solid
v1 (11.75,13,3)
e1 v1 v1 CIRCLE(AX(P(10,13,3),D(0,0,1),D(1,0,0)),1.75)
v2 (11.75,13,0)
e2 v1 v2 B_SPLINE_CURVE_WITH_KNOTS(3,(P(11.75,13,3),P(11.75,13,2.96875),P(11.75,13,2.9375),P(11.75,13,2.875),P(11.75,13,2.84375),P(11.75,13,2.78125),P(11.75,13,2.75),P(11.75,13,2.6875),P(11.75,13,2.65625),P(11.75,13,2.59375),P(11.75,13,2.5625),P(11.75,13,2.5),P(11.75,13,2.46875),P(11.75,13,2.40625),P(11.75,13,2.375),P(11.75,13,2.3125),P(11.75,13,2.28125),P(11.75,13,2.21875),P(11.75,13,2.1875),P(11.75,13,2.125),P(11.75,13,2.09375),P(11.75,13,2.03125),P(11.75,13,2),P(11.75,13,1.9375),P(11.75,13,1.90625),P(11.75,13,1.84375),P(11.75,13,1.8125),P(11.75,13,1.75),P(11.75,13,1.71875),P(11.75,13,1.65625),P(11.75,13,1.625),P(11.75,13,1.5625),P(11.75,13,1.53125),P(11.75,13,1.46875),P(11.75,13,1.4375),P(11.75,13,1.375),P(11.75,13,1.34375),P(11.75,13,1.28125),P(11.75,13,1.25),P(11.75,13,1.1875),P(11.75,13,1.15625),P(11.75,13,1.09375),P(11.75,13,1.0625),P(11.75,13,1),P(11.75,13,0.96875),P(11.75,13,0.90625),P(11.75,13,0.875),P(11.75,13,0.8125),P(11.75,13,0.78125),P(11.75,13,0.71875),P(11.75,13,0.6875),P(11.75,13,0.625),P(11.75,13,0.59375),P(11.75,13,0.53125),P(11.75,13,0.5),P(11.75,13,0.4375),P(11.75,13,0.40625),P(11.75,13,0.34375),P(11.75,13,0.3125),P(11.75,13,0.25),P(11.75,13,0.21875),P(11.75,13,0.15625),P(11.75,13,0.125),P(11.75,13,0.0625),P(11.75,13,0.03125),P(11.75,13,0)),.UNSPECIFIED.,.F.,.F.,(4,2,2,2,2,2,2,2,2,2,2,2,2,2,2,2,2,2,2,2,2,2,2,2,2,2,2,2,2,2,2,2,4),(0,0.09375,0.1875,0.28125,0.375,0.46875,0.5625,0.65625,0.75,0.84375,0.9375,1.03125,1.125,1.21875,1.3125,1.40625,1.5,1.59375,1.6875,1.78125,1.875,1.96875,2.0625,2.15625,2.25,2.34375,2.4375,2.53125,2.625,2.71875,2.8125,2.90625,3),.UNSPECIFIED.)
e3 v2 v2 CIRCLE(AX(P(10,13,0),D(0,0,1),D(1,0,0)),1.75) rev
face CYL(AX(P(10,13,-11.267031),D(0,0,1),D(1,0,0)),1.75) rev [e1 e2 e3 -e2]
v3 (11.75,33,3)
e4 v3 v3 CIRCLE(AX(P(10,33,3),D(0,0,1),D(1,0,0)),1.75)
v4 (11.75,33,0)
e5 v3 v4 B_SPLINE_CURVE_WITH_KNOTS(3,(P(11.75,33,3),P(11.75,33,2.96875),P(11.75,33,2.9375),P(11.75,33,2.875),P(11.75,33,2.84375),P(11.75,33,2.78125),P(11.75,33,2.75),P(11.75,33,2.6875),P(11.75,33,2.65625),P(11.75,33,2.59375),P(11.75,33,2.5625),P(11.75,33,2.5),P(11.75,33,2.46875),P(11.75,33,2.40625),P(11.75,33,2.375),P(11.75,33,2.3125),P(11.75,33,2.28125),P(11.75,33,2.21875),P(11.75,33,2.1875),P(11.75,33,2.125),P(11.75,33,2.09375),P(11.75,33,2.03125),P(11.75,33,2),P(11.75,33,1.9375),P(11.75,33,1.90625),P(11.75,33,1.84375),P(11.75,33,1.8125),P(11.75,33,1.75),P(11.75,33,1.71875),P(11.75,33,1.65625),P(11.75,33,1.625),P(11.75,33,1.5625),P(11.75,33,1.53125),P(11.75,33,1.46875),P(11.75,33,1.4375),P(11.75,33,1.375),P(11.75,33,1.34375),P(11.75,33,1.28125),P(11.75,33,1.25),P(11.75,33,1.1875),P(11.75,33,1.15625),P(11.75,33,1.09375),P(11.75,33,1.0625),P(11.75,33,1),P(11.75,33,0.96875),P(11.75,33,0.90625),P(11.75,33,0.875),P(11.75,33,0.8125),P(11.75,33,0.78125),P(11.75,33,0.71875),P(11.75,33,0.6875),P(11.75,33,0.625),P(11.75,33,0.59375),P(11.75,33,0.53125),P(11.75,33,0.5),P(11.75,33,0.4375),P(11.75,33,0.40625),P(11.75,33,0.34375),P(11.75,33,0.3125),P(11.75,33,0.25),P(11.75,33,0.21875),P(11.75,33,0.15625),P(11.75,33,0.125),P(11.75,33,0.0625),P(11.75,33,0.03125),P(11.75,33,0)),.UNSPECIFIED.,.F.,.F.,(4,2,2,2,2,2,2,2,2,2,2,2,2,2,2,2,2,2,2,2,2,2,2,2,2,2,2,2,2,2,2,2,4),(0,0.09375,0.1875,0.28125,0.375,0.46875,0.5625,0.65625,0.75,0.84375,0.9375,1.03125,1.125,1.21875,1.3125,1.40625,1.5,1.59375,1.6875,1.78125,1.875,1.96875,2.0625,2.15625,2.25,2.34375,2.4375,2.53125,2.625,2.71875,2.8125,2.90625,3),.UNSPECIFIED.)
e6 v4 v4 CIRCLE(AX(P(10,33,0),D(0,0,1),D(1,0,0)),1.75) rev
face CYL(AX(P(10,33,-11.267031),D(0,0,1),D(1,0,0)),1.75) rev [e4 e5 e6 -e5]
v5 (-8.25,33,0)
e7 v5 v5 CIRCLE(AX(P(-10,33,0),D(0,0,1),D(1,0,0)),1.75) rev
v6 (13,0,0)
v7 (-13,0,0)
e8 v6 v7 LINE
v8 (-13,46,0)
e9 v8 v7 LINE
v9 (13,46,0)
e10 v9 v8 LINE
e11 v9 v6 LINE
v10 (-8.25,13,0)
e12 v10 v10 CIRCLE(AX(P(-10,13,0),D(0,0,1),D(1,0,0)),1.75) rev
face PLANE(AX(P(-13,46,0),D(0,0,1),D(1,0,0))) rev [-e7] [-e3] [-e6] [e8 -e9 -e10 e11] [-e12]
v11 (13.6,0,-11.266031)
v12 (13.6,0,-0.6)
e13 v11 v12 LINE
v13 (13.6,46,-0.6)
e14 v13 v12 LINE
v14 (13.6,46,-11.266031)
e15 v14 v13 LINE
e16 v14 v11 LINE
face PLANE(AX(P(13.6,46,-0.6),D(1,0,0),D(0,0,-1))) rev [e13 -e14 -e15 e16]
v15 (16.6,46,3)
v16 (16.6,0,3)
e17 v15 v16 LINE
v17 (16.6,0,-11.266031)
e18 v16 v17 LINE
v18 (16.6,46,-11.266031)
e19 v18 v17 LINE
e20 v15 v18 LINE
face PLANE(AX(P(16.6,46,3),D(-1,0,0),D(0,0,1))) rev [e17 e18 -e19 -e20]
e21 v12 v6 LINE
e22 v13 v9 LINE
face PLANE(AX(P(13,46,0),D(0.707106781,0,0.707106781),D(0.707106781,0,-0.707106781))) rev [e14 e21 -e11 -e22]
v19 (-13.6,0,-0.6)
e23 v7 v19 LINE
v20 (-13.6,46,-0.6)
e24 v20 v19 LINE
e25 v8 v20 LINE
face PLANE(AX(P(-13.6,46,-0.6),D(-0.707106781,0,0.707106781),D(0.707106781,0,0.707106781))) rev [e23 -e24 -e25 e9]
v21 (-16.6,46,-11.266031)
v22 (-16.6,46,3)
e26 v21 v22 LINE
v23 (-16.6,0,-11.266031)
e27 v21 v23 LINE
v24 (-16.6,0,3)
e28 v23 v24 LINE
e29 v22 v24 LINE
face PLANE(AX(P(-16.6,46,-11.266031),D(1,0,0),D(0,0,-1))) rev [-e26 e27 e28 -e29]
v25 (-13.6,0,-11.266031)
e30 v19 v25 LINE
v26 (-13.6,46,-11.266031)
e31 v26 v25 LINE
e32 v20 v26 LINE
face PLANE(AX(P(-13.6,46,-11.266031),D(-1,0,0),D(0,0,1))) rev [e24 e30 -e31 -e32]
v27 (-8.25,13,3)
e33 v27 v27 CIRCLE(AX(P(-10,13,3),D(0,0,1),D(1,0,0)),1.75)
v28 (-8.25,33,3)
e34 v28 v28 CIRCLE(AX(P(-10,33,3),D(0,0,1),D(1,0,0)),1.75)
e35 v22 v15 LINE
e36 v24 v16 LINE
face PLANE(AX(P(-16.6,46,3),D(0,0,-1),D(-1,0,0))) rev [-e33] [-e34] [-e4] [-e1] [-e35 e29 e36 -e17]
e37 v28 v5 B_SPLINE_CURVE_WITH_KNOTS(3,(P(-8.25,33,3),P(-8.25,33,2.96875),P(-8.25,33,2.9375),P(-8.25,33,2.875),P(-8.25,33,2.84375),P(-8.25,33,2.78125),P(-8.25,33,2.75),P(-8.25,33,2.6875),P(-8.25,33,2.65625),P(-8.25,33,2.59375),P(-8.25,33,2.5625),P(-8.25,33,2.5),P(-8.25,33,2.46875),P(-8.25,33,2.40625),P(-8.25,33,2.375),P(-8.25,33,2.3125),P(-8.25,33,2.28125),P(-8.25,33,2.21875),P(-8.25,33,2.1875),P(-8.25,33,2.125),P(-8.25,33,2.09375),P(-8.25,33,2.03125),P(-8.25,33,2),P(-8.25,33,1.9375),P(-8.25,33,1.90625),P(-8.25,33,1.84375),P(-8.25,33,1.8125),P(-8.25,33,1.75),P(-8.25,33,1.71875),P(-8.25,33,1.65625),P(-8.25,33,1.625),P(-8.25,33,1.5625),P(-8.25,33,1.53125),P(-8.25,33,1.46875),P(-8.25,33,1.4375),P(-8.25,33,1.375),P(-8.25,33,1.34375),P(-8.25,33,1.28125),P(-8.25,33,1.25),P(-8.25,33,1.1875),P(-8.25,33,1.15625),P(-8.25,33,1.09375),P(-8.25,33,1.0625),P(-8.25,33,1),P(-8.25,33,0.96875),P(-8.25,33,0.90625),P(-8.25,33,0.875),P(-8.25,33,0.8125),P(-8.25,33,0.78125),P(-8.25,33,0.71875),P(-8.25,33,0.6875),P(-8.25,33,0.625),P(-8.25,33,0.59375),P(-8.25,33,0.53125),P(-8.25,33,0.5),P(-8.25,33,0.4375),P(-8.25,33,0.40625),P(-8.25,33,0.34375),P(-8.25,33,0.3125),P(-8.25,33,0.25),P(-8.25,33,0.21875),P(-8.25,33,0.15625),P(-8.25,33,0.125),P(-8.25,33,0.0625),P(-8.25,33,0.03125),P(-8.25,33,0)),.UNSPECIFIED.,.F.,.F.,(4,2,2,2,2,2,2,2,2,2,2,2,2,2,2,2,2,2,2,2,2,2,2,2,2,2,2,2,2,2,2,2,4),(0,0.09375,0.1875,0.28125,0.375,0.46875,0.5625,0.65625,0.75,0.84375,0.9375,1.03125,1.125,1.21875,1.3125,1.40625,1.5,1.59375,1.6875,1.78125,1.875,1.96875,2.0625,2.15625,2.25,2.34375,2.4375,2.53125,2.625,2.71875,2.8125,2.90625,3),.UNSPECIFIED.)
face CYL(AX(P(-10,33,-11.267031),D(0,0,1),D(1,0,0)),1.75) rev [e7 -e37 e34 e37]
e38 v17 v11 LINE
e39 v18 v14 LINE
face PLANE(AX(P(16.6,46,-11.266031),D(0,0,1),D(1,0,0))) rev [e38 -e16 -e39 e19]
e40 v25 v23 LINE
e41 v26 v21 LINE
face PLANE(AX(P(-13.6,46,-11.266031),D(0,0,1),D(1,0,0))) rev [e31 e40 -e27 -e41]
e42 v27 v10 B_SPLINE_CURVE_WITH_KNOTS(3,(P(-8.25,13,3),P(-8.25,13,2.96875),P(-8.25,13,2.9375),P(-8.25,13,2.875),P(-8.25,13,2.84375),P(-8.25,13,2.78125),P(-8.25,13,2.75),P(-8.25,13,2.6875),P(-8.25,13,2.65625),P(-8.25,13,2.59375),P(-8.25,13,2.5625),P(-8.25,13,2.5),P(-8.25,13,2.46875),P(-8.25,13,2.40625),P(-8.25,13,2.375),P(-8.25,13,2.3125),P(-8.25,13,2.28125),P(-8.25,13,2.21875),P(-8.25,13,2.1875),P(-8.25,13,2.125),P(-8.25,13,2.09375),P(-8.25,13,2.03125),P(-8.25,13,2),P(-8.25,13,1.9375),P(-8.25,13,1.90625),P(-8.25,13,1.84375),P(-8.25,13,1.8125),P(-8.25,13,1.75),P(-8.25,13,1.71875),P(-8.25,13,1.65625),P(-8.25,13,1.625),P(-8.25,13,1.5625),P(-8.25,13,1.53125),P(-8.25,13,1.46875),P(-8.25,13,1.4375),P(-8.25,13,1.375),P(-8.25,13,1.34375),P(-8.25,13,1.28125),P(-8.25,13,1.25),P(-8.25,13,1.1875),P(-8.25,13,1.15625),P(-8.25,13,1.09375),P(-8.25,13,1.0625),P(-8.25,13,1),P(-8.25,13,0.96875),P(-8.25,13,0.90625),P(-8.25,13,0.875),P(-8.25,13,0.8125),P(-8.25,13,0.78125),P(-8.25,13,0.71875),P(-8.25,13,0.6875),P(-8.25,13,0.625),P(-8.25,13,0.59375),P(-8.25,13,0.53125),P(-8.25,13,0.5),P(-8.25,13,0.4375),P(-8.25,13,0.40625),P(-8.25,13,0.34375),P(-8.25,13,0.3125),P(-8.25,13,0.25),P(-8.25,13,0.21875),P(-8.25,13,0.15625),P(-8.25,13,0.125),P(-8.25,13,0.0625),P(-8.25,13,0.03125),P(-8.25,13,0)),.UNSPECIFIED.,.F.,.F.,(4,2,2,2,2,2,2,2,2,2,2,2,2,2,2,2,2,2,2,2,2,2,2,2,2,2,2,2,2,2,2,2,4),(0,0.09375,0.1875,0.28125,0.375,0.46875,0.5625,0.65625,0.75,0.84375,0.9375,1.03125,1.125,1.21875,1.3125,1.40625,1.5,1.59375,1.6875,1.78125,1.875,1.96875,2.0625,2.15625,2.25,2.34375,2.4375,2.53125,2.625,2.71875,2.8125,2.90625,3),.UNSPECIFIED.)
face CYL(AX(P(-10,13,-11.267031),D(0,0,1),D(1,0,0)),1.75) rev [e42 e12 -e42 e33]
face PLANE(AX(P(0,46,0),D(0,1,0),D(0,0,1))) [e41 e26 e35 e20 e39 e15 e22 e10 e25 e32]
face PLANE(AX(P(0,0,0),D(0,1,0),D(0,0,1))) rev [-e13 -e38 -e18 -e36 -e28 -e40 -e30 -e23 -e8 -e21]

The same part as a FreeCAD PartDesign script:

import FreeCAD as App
import Part
import Sketcher
Q = App.Units.Quantity

doc = App.newDocument("Part")
body = doc.addObject("PartDesign::Body", "Body")

# Sketch on XZ plane
sketch1 = body.newObject("Sketcher::SketchObject", "Sketch")
sketch1.AttachmentSupport = (doc.getObject("XZ_Plane"), [""])
sketch1.MapMode = "FlatFace"
sketch1.addGeometry(Part.LineSegment(App.Vector(-13.6, -0.6, 0), App.Vector(-13.6, -11.3, 0)), False)
sketch1.addGeometry(Part.LineSegment(App.Vector(-13.6, -11.3, 0), App.Vector(-16.6, -11.3, 0)), False)
sketch1.addGeometry(Part.LineSegment(App.Vector(-16.6, -11.3, 0), App.Vector(-16.6, 3, 0)), False)
sketch1.addGeometry(Part.LineSegment(App.Vector(-16.6, 3, 0), App.Vector(16.6, 3, 0)), False)
sketch1.addGeometry(Part.LineSegment(App.Vector(16.6, 3, 0), App.Vector(16.6, -11.3, 0)), False)
sketch1.addGeometry(Part.LineSegment(App.Vector(16.6, -11.3, 0), App.Vector(13.6, -11.3, 0)), False)
sketch1.addGeometry(Part.LineSegment(App.Vector(13.6, -11.3, 0), App.Vector(13.6, -0.6, 0)), False)
sketch1.addGeometry(Part.LineSegment(App.Vector(13.6, -0.6, 0), App.Vector(13, 0, 0)), False)
sketch1.addGeometry(Part.LineSegment(App.Vector(13, 0, 0), App.Vector(-13, 0, 0)), False)
sketch1.addGeometry(Part.LineSegment(App.Vector(-13, 0, 0), App.Vector(-13.6, -0.6, 0)), False)
sketch1.addConstraint(Sketcher.Constraint("Coincident", 0, 2, 1, 1))
sketch1.addConstraint(Sketcher.Constraint("Coincident", 1, 2, 2, 1))
sketch1.addConstraint(Sketcher.Constraint("Coincident", 2, 2, 3, 1))
sketch1.addConstraint(Sketcher.Constraint("Coincident", 3, 2, 4, 1))
sketch1.addConstraint(Sketcher.Constraint("Coincident", 4, 2, 5, 1))
sketch1.addConstraint(Sketcher.Constraint("Coincident", 5, 2, 6, 1))
sketch1.addConstraint(Sketcher.Constraint("Coincident", 6, 2, 7, 1))
sketch1.addConstraint(Sketcher.Constraint("Coincident", 7, 2, 8, 1))
sketch1.addConstraint(Sketcher.Constraint("Coincident", 8, 2, 9, 1))
sketch1.addConstraint(Sketcher.Constraint("Coincident", 9, 2, 0, 1))
sketch1.addConstraint(Sketcher.Constraint("Vertical", 0))
sketch1.addConstraint(Sketcher.Constraint("Horizontal", 1))
sketch1.addConstraint(Sketcher.Constraint("Vertical", 2))
sketch1.addConstraint(Sketcher.Constraint("Horizontal", 3))
sketch1.addConstraint(Sketcher.Constraint("Vertical", 4))
sketch1.addConstraint(Sketcher.Constraint("Horizontal", 5))
sketch1.addConstraint(Sketcher.Constraint("Vertical", 6))
sketch1.addConstraint(Sketcher.Constraint("Horizontal", 8))
sketch1.addConstraint(Sketcher.Constraint("Symmetric", 7, 2, 8, 2, -1, 1))
sketch1.addConstraint(Sketcher.Constraint("Symmetric", 1, 2, 4, 2, -2))
sketch1.addConstraint(Sketcher.Constraint("Symmetric", 6, 2, 9, 2, -2))
sketch1.addConstraint(Sketcher.Constraint("Perpendicular", 7, 9))
sketch1.addConstraint(Sketcher.Constraint("DistanceX", 1, 2, 1, 1, Q("3 mm")))
sketch1.addConstraint(Sketcher.Constraint("DistanceX", 8, 2, 8, 1, Q("26 mm")))
sketch1.addConstraint(Sketcher.Constraint("DistanceX", 3, 1, 3, 2, Q("33.2 mm")))
sketch1.addConstraint(Sketcher.Constraint("DistanceY", -1, 1, 2, 2, Q("3 mm")))
sketch1.addConstraint(Sketcher.Constraint("DistanceY", 0, 2, 0, 1, Q("10.666031 mm")))
pad1 = body.newObject("PartDesign::Pad", "Pad")
pad1.Profile = sketch1
pad1.Length = 46
pad1.Reversed = True

# Sketch on XY plane
sketch2 = body.newObject("Sketcher::SketchObject", "Sketch001")
sketch2.AttachmentSupport = (doc.getObject("XY_Plane"), [""])
sketch2.MapMode = "FlatFace"
sketch2.AttachmentOffset = App.Placement(App.Vector(0, 0, 3), App.Rotation())
sketch2.addGeometry(Part.Circle(App.Vector(-10, 33, 0), App.Vector(0, 0, 1), 1.8), False)
sketch2.addConstraint(Sketcher.Constraint("Diameter", 0, Q("3.5 mm")))
sketch2.addConstraint(Sketcher.Constraint("DistanceX", 0, 3, -1, 1, Q("10 mm")))
sketch2.addConstraint(Sketcher.Constraint("DistanceY", -1, 1, 0, 3, Q("33 mm")))
pocket1 = body.newObject("PartDesign::Pocket", "Pocket")
pocket1.Profile = sketch2
pocket1.Type = "UpToFirst"

# Sketch on XY plane
sketch3 = body.newObject("Sketcher::SketchObject", "Sketch002")
sketch3.AttachmentSupport = (doc.getObject("XY_Plane"), [""])
sketch3.MapMode = "FlatFace"
sketch3.AttachmentOffset = App.Placement(App.Vector(0, 0, 3), App.Rotation())
sketch3.addGeometry(Part.Circle(App.Vector(10, 33, 0), App.Vector(0, 0, 1), 1.8), False)
sketch3.addConstraint(Sketcher.Constraint("Diameter", 0, Q("3.5 mm")))
sketch3.addConstraint(Sketcher.Constraint("DistanceX", -1, 1, 0, 3, Q("10 mm")))
sketch3.addConstraint(Sketcher.Constraint("DistanceY", -1, 1, 0, 3, Q("33 mm")))
pocket2 = body.newObject("PartDesign::Pocket", "Pocket001")
pocket2.Profile = sketch3
pocket2.Type = "UpToFirst"

# Sketch on XY plane
sketch4 = body.newObject("Sketcher::SketchObject", "Sketch003")
sketch4.AttachmentSupport = (doc.getObject("XY_Plane"), [""])
sketch4.MapMode = "FlatFace"
sketch4.AttachmentOffset = App.Placement(App.Vector(0, 0, 3), App.Rotation())
sketch4.addGeometry(Part.Circle(App.Vector(10, 13, 0), App.Vector(0, 0, 1), 1.8), False)
sketch4.addConstraint(Sketcher.Constraint("Diameter", 0, Q("3.5 mm")))
sketch4.addConstraint(Sketcher.Constraint("DistanceX", -1, 1, 0, 3, Q("10 mm")))
sketch4.addConstraint(Sketcher.Constraint("DistanceY", -1, 1, 0, 3, Q("13 mm")))
pocket3 = body.newObject("PartDesign::Pocket", "Pocket002")
pocket3.Profile = sketch4
pocket3.Type = "UpToFirst"

# Sketch on XY plane
sketch5 = body.newObject("Sketcher::SketchObject", "Sketch004")
sketch5.AttachmentSupport = (doc.getObject("XY_Plane"), [""])
sketch5.MapMode = "FlatFace"
sketch5.AttachmentOffset = App.Placement(App.Vector(0, 0, 3), App.Rotation())
sketch5.addGeometry(Part.Circle(App.Vector(-10, 13, 0), App.Vector(0, 0, 1), 1.8), False)
sketch5.addConstraint(Sketcher.Constraint("Diameter", 0, Q("3.5 mm")))
sketch5.addConstraint(Sketcher.Constraint("DistanceX", 0, 3, -1, 1, Q("10 mm")))
sketch5.addConstraint(Sketcher.Constraint("DistanceY", -1, 1, 0, 3, Q("13 mm")))
pocket4 = body.newObject("PartDesign::Pocket", "Pocket003")
pocket4.Profile = sketch5
pocket4.Type = "UpToFirst"

doc.recompute()
